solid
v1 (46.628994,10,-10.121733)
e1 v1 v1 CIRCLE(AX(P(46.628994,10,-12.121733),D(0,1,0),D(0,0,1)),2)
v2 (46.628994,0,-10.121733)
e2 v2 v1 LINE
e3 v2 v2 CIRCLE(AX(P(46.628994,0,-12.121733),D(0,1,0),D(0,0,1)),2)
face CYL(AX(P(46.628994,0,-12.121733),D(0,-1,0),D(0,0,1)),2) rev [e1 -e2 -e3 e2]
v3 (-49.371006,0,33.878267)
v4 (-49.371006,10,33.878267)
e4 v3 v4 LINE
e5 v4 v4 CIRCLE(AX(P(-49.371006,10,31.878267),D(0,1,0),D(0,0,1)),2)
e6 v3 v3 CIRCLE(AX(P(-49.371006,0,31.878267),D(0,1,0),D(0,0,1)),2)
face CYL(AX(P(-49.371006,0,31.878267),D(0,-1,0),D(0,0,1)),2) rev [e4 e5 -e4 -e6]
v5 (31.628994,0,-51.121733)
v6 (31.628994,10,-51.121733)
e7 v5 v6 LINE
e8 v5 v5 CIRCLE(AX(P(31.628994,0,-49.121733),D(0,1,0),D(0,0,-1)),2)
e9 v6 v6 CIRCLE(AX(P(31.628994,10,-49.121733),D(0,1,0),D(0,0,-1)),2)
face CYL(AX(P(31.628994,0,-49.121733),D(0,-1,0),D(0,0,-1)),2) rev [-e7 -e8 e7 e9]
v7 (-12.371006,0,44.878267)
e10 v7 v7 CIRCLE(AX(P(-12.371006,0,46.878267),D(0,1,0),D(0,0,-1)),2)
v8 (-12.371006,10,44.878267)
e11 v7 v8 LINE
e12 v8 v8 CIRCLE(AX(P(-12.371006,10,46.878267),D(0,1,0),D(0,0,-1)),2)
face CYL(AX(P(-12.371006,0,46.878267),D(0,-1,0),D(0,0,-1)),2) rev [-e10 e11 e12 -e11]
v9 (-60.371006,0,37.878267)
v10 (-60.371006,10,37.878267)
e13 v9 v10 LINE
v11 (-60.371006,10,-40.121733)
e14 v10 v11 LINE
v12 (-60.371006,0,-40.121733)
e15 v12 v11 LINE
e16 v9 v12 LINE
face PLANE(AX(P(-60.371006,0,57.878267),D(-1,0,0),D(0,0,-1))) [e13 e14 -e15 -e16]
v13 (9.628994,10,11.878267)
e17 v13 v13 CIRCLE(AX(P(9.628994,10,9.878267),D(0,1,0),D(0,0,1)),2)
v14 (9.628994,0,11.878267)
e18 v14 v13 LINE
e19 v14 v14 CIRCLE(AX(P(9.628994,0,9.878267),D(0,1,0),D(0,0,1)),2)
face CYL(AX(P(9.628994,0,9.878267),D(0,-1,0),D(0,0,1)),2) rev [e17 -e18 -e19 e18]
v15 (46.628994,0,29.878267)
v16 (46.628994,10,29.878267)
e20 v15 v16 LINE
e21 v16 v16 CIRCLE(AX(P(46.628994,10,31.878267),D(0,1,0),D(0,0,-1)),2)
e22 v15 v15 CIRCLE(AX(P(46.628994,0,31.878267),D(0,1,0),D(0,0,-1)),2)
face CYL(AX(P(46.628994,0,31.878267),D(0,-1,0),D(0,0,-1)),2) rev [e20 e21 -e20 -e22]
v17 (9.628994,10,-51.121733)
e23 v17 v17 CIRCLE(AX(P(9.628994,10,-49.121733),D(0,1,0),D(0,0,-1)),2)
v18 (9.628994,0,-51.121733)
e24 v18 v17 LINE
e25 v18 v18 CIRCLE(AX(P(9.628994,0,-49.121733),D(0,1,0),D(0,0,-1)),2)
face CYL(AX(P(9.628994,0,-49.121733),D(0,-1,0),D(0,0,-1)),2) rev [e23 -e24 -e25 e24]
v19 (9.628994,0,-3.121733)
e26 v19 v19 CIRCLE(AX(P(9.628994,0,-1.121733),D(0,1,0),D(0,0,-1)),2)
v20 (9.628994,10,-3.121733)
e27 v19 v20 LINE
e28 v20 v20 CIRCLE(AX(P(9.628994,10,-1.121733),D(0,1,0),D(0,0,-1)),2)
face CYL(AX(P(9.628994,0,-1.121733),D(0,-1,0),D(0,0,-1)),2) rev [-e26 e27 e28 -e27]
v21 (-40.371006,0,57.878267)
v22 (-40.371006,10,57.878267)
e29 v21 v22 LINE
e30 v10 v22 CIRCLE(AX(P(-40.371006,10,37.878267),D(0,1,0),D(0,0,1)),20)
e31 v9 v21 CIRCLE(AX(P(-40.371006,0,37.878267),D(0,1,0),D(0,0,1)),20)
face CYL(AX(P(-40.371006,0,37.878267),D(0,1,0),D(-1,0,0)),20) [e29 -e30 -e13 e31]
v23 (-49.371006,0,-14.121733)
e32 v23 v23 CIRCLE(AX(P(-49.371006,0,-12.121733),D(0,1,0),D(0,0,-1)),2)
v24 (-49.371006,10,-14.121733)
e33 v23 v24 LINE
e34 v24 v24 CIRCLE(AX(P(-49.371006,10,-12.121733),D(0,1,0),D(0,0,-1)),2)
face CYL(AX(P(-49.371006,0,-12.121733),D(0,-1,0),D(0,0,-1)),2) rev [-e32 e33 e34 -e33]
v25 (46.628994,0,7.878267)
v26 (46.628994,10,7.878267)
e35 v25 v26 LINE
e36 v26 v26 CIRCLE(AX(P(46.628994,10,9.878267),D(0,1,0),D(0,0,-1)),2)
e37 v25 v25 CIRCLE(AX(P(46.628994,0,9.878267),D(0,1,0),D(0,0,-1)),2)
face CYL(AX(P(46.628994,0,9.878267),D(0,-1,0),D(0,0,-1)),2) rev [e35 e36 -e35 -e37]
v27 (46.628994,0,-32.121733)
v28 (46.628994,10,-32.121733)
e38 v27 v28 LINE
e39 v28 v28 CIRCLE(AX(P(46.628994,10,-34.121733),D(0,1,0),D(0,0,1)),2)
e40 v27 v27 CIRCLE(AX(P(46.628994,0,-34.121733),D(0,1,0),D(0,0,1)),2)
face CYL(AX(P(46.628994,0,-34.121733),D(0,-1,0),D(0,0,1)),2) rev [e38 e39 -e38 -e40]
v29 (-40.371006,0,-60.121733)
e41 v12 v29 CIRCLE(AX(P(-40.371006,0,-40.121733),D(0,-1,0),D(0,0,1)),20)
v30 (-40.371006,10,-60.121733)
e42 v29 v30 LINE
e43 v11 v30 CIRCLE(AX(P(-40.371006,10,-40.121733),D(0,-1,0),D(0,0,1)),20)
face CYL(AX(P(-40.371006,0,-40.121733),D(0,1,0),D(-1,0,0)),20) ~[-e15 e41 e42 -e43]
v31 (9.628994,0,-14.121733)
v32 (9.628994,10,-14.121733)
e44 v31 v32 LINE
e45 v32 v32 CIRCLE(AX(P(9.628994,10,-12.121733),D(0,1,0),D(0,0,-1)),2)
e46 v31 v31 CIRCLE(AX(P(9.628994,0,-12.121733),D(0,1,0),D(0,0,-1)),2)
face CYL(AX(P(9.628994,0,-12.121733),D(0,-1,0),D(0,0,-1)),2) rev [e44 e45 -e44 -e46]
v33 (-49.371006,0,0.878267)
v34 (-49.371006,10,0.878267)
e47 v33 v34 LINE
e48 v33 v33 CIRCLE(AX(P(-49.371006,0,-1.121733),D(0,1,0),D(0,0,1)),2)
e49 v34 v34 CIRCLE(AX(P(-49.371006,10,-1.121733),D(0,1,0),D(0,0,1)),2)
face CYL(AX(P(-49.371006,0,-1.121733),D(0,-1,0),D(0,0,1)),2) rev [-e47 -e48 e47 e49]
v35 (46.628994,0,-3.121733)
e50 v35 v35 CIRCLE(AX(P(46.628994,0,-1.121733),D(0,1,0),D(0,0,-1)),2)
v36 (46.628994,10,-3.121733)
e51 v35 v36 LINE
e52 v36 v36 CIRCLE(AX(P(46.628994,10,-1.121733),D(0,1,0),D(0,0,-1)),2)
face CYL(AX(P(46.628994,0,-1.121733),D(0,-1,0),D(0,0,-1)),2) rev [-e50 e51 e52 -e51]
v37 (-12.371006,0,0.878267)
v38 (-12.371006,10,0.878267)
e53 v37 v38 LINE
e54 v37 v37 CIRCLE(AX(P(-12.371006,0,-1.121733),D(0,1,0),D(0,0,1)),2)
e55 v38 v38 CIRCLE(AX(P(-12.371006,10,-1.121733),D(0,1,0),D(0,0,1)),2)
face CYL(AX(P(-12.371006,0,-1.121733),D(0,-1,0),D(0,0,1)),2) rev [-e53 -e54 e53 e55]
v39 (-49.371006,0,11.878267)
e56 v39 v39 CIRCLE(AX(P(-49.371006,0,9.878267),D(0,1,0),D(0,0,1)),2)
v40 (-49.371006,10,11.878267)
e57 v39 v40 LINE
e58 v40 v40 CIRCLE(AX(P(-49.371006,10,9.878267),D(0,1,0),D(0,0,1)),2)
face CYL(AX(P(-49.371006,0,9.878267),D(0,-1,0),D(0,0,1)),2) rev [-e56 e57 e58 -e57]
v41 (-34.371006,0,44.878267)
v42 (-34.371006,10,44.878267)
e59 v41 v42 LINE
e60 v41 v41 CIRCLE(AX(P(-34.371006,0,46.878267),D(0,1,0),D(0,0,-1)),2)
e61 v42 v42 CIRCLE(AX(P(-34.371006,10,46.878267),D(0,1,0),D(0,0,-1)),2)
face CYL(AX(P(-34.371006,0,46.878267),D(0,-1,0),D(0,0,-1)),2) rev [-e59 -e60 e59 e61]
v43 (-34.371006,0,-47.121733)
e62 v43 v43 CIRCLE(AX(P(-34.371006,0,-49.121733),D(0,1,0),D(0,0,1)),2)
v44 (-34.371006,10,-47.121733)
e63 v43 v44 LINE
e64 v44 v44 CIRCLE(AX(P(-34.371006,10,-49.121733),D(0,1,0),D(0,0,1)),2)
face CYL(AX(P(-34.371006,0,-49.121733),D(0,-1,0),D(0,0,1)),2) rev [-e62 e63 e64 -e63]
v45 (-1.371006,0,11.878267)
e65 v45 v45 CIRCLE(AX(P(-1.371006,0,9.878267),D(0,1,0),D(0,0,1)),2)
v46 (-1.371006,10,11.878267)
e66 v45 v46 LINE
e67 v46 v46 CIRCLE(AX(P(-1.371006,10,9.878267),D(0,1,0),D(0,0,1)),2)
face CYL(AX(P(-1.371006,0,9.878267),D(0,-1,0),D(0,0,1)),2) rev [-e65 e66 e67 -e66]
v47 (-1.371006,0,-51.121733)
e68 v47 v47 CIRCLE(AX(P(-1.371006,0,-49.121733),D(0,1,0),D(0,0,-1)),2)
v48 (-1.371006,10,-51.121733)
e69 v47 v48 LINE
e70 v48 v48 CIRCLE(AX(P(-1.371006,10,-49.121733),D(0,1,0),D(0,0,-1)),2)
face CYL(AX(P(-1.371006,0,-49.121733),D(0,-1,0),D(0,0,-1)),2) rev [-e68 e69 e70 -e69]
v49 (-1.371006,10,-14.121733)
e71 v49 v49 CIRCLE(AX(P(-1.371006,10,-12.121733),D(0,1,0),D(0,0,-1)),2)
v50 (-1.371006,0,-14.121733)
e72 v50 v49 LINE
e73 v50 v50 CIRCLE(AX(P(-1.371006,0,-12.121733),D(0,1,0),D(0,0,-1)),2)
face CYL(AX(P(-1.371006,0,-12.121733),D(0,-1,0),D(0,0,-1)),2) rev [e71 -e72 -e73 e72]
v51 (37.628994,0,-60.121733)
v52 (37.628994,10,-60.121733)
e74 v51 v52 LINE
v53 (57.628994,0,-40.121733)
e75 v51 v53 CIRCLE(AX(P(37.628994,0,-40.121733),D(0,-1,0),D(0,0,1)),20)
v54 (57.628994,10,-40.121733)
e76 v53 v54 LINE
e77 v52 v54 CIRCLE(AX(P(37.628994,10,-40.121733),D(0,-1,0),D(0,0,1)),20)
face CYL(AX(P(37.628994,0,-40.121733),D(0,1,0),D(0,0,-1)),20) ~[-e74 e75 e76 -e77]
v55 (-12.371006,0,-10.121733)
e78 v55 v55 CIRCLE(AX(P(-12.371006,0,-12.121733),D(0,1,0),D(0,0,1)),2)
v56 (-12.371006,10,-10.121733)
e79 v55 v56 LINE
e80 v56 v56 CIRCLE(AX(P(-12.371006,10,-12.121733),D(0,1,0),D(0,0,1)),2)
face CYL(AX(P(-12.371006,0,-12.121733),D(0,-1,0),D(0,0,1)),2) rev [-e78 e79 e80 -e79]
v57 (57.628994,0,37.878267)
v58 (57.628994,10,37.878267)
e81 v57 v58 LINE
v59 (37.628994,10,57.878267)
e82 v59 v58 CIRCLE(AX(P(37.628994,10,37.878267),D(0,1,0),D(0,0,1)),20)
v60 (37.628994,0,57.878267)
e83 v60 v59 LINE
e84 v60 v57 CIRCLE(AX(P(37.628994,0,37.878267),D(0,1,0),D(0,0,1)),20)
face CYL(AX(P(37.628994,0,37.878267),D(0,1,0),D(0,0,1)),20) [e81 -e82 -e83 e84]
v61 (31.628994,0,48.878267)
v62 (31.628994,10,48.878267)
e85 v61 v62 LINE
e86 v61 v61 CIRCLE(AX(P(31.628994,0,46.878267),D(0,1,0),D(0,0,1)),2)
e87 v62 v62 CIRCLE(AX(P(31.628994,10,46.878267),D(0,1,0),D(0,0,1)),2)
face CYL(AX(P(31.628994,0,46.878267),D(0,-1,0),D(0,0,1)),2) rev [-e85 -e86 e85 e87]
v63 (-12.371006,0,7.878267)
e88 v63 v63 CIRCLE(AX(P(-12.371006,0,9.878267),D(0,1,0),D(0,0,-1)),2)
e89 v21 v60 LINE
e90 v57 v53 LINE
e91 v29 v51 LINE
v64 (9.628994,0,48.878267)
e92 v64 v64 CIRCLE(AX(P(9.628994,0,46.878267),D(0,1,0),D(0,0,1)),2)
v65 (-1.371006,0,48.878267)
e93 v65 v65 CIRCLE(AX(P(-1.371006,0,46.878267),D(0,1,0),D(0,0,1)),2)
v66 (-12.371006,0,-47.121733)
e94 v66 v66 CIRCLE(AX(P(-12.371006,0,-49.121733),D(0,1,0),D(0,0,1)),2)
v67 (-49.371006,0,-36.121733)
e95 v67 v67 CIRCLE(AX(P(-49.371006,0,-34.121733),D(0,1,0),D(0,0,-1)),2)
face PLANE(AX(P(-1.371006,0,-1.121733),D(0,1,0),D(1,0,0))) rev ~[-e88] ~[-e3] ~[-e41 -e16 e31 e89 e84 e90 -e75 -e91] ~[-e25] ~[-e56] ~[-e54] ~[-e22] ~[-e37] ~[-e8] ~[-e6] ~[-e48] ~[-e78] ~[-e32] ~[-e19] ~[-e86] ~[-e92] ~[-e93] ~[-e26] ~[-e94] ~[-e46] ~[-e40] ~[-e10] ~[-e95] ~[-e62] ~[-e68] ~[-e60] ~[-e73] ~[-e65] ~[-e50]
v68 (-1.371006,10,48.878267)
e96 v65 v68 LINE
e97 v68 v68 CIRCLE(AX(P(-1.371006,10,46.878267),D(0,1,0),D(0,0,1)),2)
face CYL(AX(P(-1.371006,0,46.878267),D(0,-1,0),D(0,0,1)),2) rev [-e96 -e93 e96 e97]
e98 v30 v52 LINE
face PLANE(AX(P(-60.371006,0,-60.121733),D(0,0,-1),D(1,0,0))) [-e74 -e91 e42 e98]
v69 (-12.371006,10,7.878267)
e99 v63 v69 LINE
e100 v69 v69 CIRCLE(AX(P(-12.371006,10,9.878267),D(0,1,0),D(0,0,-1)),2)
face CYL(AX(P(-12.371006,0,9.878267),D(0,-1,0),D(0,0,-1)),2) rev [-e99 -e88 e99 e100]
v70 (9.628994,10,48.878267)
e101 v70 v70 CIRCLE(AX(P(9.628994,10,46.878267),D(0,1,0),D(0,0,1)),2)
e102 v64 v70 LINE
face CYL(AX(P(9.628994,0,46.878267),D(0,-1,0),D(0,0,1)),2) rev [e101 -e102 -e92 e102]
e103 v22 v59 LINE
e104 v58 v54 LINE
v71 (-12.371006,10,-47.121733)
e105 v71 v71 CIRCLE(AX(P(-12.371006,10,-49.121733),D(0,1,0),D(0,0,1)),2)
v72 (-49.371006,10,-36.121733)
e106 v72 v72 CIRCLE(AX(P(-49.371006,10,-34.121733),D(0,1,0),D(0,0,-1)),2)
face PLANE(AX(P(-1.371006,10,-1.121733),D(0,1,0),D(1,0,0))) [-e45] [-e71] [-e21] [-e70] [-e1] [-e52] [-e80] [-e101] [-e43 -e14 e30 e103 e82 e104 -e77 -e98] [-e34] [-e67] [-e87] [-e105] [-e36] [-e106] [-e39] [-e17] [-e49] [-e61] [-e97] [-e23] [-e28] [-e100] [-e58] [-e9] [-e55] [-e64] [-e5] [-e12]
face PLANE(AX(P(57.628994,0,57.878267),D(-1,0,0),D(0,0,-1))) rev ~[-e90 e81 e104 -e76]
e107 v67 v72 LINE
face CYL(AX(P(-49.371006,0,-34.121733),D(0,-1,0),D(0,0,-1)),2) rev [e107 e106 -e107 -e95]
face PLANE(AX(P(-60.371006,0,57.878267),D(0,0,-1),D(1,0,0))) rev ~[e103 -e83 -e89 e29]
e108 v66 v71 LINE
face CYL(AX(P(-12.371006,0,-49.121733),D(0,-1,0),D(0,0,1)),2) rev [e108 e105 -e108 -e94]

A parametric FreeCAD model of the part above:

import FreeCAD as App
import Part
import Sketcher
from FreeCAD import Vector


def edges_at(feature, points):
    """Names of the edges that pass closest to the given points."""
    edges = feature.Shape.Edges
    near = lambda p: min(range(len(edges)), key=lambda i: edges[i].distToShape(Part.Vertex(*p))[0])
    return sorted({f"Edge{near(p) + 1}" for p in points})


def add_polygon(sketch, points):
    """Adds a closed chain of lines whose ends are joined by coincident constraints."""
    first, n = sketch.GeometryCount, len(points)
    for a, b in zip(points, points[1:] + points[:1]):
        sketch.addGeometry(Part.LineSegment(App.Vector(*a, 0), App.Vector(*b, 0)), False)
    for i in range(n):
        sketch.addConstraint(Sketcher.Constraint("Coincident", first + i, 2, first + (i + 1) % n, 1))

doc = App.newDocument("Part")
body = doc.addObject("PartDesign::Body", "Body")

# Sketch on XZ plane
sketch1 = body.newObject("Sketcher::SketchObject", "Sketch")
sketch1.AttachmentSupport = (doc.getObject("XZ_Plane"), [""])
sketch1.MapMode = "FlatFace"
add_polygon(sketch1, [(-60.4, -60.1), (-60.4, 57.9), (57.6, 57.9), (57.6, -60.1)])  # lines 0-3
sketch1.addGeometry(Part.Circle(Vector(-34.4, 46.9, 0), Vector(0, 0, 1), 2), False)  # 4
sketch1.addGeometry(Part.Circle(Vector(-49.4, 31.9, 0), Vector(0, 0, 1), 2), False)  # 5
sketch1.addGeometry(Part.Circle(Vector(-12.4, 46.9, 0), Vector(0, 0, 1), 2), False)  # 6
sketch1.addGeometry(Part.Circle(Vector(-49.4, 9.9, 0), Vector(0, 0, 1), 2), False)  # 7
sketch1.addGeometry(Part.Circle(Vector(-12.4, 9.9, 0), Vector(0, 0, 1), 2), False)  # 8
sketch1.addGeometry(Part.Circle(Vector(-1.4, 46.9, 0), Vector(0, 0, 1), 2), False)  # 9
sketch1.addGeometry(Part.Circle(Vector(9.6, 46.9, 0), Vector(0, 0, 1), 2), False)  # 10
sketch1.addGeometry(Part.Circle(Vector(31.6, 46.9, 0), Vector(0, 0, 1), 2), False)  # 11
sketch1.addGeometry(Part.Circle(Vector(46.6, 31.9, 0), Vector(0, 0, 1), 2), False)  # 12
sketch1.addGeometry(Part.Circle(Vector(-1.4, 9.9, 0), Vector(0, 0, 1), 2), False)  # 13
sketch1.addGeometry(Part.Circle(Vector(9.6, 9.9, 0), Vector(0, 0, 1), 2), False)  # 14
sketch1.addGeometry(Part.Circle(Vector(46.6, 9.9, 0), Vector(0, 0, 1), 2), False)  # 15
sketch1.addGeometry(Part.Circle(Vector(-49.4, -1.1, 0), Vector(0, 0, 1), 2), False)  # 16
sketch1.addGeometry(Part.Circle(Vector(-49.4, -12.1, 0), Vector(0, 0, 1), 2), False)  # 17
sketch1.addGeometry(Part.Circle(Vector(-12.4, -1.1, 0), Vector(0, 0, 1), 2), False)  # 18
sketch1.addGeometry(Part.Circle(Vector(-12.4, -12.1, 0), Vector(0, 0, 1), 2), False)  # 19
sketch1.addGeometry(Part.Circle(Vector(-49.4, -34.1, 0), Vector(0, 0, 1), 2), False)  # 20
sketch1.addGeometry(Part.Circle(Vector(-34.4, -49.1, 0), Vector(0, 0, 1), 2), False)  # 21
sketch1.addGeometry(Part.Circle(Vector(-12.4, -49.1, 0), Vector(0, 0, 1), 2), False)  # 22
sketch1.addGeometry(Part.Circle(Vector(9.6, -1.1, 0), Vector(0, 0, 1), 2), False)  # 23
sketch1.addGeometry(Part.Circle(Vector(-1.4, -12.1, 0), Vector(0, 0, 1), 2), False)  # 24
sketch1.addGeometry(Part.Circle(Vector(9.6, -12.1, 0), Vector(0, 0, 1), 2), False)  # 25
sketch1.addGeometry(Part.Circle(Vector(46.6, -1.1, 0), Vector(0, 0, 1), 2), False)  # 26
sketch1.addGeometry(Part.Circle(Vector(46.6, -12.1, 0), Vector(0, 0, 1), 2), False)  # 27
sketch1.addGeometry(Part.Circle(Vector(-1.4, -49.1, 0), Vector(0, 0, 1), 2), False)  # 28
sketch1.addGeometry(Part.Circle(Vector(9.6, -49.1, 0), Vector(0, 0, 1), 2), False)  # 29
sketch1.addGeometry(Part.Circle(Vector(46.6, -34.1, 0), Vector(0, 0, 1), 2), False)  # 30
sketch1.addGeometry(Part.Circle(Vector(31.6, -49.1, 0), Vector(0, 0, 1), 2), False)  # 31
sketch1.addConstraint([
    Sketcher.Constraint("Vertical", 0),
    Sketcher.Constraint("Horizontal", 1),
    Sketcher.Constraint("Vertical", 2),
    Sketcher.Constraint("Horizontal", 3),
    Sketcher.Constraint("Equal", 4, 5),
    Sketcher.Constraint("Equal", 5, 6),
    Sketcher.Constraint("Equal", 6, 7),
    Sketcher.Constraint("Equal", 7, 8),
    Sketcher.Constraint("Equal", 8, 9),
    Sketcher.Constraint("Equal", 9, 10),
    Sketcher.Constraint("Equal", 10, 11),
    Sketcher.Constraint("Equal", 11, 12),
    Sketcher.Constraint("Equal", 12, 13),
    Sketcher.Constraint("Equal", 13, 14),
    Sketcher.Constraint("Equal", 14, 15),
    Sketcher.Constraint("Equal", 15, 16),
    Sketcher.Constraint("Equal", 16, 17),
    Sketcher.Constraint("Equal", 17, 18),
    Sketcher.Constraint("Equal", 18, 19),
    Sketcher.Constraint("Equal", 19, 20),
    Sketcher.Constraint("Equal", 20, 21),
    Sketcher.Constraint("Equal", 21, 22),
    Sketcher.Constraint("Equal", 22, 23),
    Sketcher.Constraint("Equal", 23, 24),
    Sketcher.Constraint("Equal", 24, 25),
    Sketcher.Constraint("Equal", 25, 26),
    Sketcher.Constraint("Equal", 26, 27),
    Sketcher.Constraint("Equal", 27, 28),
    Sketcher.Constraint("Equal", 28, 29),
    Sketcher.Constraint("Equal", 29, 30),
    Sketcher.Constraint("Equal", 30, 31),
    Sketcher.Constraint("Horizontal", 4, 3, 6, 3),
    Sketcher.Constraint("Horizontal", 7, 3, 8, 3),
    Sketcher.Constraint("Horizontal", 6, 3, 9, 3),
    Sketcher.Constraint("Horizontal", 9, 3, 10, 3),
    Sketcher.Constraint("Horizontal", 10, 3, 11, 3),
    Sketcher.Constraint("Horizontal", 5, 3, 12, 3),
    Sketcher.Constraint("Horizontal", 8, 3, 13, 3),
    Sketcher.Constraint("Horizontal", 13, 3, 14, 3),
    Sketcher.Constraint("Horizontal", 14, 3, 15, 3),
    Sketcher.Constraint("Horizontal", 16, 3, 18, 3),
    Sketcher.Constraint("Horizontal", 17, 3, 19, 3),
    Sketcher.Constraint("Horizontal", 21, 3, 22, 3),
    Sketcher.Constraint("Horizontal", 18, 3, 23, 3),
    Sketcher.Constraint("Horizontal", 19, 3, 24, 3),
    Sketcher.Constraint("Horizontal", 24, 3, 25, 3),
    Sketcher.Constraint("Horizontal", 23, 3, 26, 3),
    Sketcher.Constraint("Horizontal", 25, 3, 27, 3),
    Sketcher.Constraint("Horizontal", 22, 3, 28, 3),
    Sketcher.Constraint("Horizontal", 28, 3, 29, 3),
    Sketcher.Constraint("Horizontal", 20, 3, 30, 3),
    Sketcher.Constraint("Horizontal", 29, 3, 31, 3),
    Sketcher.Constraint("Vertical", 5, 3, 7, 3),
    Sketcher.Constraint("Vertical", 6, 3, 8, 3),
    Sketcher.Constraint("Vertical", 9, 3, 13, 3),
    Sketcher.Constraint("Vertical", 10, 3, 14, 3),
    Sketcher.Constraint("Vertical", 12, 3, 15, 3),
    Sketcher.Constraint("Vertical", 7, 3, 16, 3),
    Sketcher.Constraint("Vertical", 16, 3, 17, 3),
    Sketcher.Constraint("Vertical", 8, 3, 18, 3),
    Sketcher.Constraint("Vertical", 18, 3, 19, 3),
    Sketcher.Constraint("Vertical", 17, 3, 20, 3),
    Sketcher.Constraint("Vertical", 4, 3, 21, 3),
    Sketcher.Constraint("Vertical", 19, 3, 22, 3),
    Sketcher.Constraint("Vertical", 14, 3, 23, 3),
    Sketcher.Constraint("Vertical", 13, 3, 24, 3),
    Sketcher.Constraint("Vertical", 23, 3, 25, 3),
    Sketcher.Constraint("Vertical", 15, 3, 26, 3),
    Sketcher.Constraint("Vertical", 26, 3, 27, 3),
    Sketcher.Constraint("Vertical", 24, 3, 28, 3),
    Sketcher.Constraint("Vertical", 25, 3, 29, 3),
    Sketcher.Constraint("Vertical", 27, 3, 30, 3),
    Sketcher.Constraint("Vertical", 11, 3, 31, 3),
    Sketcher.Constraint("Equal", 3, 0),
    Sketcher.Constraint("Diameter", 4, 4.0),
    Sketcher.Constraint("DistanceX", 1, 1, 1, 2, 118.0),
    Sketcher.Constraint("DistanceX", 5, 3, 4, 3, 15.0),
    Sketcher.Constraint("DistanceY", 5, 3, 4, 3, 15.0),
    Sketcher.Constraint("DistanceX", 4, 3, 6, 3, 22.0),
    Sketcher.Constraint("DistanceY", 7, 3, 5, 3, 22.0),
    Sketcher.Constraint("DistanceX", 6, 3, 9, 3, 11.0),
    Sketcher.Constraint("DistanceX", 9, 3, 10, 3, 11.0),
    Sketcher.Constraint("DistanceX", 10, 3, 11, 3, 22.0),
    Sketcher.Constraint("DistanceX", 11, 3, 12, 3, 15.0),
    Sketcher.Constraint("DistanceY", 16, 3, 7, 3, 11.0),
    Sketcher.Constraint("DistanceY", 17, 3, 16, 3, 11.0),
    Sketcher.Constraint("DistanceY", 20, 3, 17, 3, 22.0),
    Sketcher.Constraint("DistanceY", 21, 3, 20, 3, 15.0),
    Sketcher.Constraint("DistanceX", 0, 2, 4, 3, 26.0),
    Sketcher.Constraint("DistanceY", 4, 3, 0, 2, 11.0),
    Sketcher.Constraint("DistanceX", 4, 3, -1, 1, 34.371006),
    Sketcher.Constraint("DistanceY", -1, 1, 4, 3, 46.878267),
])
pad1 = body.newObject("PartDesign::Pad", "Pad")
pad1.Profile = sketch1
pad1.Length = 10
pad1.Reversed = True
doc.recompute()

fillet = body.newObject("PartDesign::Fillet", "Fillet")
fillet.Base = (pad1, edges_at(pad1, [
    (-60.371, 5, -60.122),
    (57.629, 5, -60.122),
    (57.629, 5, 57.878),
    (-60.371, 5, 57.878),
]))
fillet.Radius = 20

doc.recompute()
